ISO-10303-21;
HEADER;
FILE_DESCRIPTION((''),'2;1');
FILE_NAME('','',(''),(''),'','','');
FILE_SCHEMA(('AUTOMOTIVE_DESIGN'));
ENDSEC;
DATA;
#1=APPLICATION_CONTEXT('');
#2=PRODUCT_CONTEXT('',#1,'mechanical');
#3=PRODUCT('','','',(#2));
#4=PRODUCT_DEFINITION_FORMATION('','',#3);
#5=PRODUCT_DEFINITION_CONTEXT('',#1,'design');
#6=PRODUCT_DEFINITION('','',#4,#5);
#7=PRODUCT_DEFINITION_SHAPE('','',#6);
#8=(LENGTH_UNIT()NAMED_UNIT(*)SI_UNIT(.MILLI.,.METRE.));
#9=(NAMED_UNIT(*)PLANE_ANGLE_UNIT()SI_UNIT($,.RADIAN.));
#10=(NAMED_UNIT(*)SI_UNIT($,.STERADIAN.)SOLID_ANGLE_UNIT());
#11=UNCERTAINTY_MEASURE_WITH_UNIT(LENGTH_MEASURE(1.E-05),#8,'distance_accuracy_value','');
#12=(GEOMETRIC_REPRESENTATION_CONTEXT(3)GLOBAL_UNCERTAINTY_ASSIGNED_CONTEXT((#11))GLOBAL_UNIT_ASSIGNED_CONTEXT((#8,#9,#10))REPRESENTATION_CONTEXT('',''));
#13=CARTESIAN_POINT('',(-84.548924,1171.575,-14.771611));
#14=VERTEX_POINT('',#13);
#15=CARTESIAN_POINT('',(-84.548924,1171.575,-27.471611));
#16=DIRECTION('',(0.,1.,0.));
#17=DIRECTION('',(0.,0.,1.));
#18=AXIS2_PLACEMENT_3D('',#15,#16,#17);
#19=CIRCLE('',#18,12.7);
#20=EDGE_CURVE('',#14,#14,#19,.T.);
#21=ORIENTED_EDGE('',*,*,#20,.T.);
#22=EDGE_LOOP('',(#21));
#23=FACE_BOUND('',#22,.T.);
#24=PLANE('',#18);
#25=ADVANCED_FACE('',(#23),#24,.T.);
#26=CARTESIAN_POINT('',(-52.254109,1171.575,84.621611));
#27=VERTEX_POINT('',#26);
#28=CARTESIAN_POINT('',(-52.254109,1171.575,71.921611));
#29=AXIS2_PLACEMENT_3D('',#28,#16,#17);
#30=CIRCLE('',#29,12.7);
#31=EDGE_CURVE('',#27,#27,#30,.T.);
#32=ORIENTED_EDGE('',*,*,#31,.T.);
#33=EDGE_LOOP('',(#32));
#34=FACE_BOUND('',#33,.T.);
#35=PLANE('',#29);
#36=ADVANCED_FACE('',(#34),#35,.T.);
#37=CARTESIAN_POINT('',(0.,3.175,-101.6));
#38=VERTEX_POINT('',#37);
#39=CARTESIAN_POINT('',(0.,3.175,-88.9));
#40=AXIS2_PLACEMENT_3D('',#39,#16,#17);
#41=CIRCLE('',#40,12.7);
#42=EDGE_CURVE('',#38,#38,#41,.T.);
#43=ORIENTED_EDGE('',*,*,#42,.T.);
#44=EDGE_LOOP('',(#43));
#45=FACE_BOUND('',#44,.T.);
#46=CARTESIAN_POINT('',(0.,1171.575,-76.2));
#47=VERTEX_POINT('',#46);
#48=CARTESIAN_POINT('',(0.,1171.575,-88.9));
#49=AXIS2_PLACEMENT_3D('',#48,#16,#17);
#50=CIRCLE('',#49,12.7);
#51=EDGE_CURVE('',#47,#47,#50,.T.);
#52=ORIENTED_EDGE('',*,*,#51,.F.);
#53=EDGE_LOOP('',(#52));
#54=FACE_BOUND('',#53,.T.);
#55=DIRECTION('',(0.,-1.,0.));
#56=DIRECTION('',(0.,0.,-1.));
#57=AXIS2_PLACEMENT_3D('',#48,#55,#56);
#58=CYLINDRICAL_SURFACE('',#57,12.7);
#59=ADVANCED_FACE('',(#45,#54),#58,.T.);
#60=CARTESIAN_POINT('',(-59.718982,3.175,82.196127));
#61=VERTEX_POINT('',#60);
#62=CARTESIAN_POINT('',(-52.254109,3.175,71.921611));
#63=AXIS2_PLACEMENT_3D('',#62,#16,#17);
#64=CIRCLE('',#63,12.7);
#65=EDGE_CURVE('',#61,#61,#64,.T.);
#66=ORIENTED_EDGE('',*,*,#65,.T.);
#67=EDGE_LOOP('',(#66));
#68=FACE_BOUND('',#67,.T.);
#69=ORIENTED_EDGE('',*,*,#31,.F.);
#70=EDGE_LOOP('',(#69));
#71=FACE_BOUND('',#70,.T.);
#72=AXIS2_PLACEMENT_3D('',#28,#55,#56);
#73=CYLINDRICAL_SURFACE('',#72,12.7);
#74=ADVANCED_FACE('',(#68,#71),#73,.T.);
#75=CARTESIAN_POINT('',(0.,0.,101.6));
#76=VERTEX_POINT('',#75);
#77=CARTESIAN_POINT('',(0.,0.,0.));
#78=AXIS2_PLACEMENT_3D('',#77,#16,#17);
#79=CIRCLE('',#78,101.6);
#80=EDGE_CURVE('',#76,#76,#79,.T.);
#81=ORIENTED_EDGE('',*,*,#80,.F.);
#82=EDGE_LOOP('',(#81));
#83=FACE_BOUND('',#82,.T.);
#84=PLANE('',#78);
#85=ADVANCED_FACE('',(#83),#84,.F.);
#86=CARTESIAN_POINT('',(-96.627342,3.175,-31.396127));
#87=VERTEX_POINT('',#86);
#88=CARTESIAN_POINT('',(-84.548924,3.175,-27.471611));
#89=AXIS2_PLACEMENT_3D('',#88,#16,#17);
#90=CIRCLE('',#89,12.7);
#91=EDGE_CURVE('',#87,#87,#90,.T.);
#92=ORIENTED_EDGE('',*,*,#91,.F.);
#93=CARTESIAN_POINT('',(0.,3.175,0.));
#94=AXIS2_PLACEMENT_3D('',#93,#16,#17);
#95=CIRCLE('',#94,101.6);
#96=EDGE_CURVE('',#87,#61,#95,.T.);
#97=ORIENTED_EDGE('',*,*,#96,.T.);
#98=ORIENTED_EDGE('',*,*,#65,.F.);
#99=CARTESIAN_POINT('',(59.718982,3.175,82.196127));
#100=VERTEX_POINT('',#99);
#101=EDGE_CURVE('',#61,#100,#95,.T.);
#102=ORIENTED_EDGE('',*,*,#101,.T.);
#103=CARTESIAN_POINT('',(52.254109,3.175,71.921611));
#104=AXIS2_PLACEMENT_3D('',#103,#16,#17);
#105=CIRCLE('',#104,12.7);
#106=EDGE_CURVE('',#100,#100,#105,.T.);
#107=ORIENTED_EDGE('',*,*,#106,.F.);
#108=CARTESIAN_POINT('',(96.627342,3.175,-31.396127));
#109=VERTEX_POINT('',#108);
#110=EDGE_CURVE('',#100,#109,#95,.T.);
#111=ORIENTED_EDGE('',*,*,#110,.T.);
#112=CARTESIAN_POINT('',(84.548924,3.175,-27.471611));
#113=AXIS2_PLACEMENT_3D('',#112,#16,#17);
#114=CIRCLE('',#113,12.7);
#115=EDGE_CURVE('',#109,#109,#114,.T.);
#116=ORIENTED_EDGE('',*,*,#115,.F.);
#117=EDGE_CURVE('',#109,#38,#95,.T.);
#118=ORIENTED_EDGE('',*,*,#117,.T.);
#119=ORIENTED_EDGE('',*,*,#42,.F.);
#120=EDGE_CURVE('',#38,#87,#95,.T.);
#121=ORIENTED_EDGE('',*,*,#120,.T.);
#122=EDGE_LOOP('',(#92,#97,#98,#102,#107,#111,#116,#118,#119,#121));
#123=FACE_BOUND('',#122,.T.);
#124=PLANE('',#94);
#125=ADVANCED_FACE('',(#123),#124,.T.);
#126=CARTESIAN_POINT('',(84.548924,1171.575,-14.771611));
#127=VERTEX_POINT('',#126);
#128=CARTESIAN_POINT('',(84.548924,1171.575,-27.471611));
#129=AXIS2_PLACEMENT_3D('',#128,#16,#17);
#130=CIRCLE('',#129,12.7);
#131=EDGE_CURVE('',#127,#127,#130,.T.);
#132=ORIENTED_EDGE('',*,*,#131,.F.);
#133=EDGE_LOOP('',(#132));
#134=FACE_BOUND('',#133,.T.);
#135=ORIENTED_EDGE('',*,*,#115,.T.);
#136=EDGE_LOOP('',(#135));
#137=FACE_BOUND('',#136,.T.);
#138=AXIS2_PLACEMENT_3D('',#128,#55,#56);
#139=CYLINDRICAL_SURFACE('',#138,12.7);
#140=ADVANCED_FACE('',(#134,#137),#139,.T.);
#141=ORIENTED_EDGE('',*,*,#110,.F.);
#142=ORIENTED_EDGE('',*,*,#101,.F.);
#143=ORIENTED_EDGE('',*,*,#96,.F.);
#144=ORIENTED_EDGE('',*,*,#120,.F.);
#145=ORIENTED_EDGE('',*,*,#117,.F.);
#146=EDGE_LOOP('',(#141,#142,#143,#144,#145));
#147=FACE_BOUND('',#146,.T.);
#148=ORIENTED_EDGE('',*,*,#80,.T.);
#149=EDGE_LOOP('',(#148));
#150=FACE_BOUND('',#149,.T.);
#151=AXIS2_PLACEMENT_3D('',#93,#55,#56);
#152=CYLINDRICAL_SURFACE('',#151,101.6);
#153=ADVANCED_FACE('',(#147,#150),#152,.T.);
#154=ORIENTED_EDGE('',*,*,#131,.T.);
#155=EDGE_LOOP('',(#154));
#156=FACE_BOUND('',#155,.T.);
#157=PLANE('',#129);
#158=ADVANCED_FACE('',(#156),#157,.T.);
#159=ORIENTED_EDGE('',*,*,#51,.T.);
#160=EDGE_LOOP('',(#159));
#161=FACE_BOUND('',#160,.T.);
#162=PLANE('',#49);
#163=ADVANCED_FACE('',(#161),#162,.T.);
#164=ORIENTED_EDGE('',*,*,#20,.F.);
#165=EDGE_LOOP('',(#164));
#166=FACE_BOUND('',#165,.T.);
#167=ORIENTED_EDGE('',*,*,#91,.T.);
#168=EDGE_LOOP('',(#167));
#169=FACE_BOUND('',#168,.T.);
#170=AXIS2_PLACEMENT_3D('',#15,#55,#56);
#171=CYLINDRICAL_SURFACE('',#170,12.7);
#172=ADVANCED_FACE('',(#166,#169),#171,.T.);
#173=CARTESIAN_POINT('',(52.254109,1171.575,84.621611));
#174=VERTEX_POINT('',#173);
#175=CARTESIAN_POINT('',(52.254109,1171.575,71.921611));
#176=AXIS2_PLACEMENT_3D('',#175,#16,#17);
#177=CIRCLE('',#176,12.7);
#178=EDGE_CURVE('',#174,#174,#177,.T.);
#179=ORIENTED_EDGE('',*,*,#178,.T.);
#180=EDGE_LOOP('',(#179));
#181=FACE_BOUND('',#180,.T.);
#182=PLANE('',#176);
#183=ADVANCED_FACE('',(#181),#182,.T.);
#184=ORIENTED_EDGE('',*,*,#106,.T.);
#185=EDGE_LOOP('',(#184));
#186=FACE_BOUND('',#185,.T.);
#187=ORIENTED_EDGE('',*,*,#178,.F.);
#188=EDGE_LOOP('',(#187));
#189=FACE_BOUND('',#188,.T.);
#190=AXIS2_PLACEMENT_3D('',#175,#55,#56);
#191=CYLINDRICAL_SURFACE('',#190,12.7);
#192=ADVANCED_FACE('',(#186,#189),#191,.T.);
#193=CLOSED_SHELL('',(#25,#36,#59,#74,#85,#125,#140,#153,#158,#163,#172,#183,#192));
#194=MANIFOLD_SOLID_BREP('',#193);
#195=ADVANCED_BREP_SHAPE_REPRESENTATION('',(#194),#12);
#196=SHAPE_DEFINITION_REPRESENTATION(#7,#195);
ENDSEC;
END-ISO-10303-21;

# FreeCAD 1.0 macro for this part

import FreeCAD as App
import Part
import Sketcher
Q = App.Units.Quantity

doc = App.newDocument("Part")
params = doc.addObject("Spreadsheet::Sheet", "Params")
for row, (alias, value) in enumerate([
    ("sketch1_diameter", "8 in"),
    ("pad1_length", "0.125 in"),
    ("sketch2_diameter", "1 in"),
    ("pad2_length", "46 in"),
], start=1):
    params.set(f"A{row}", alias)
    params.set(f"B{row}", "=" + value)
    params.setAlias(f"B{row}", alias)

body = doc.addObject("PartDesign::Body", "Body")

# Sketch on XZ plane
sketch1 = body.newObject("Sketcher::SketchObject", "Sketch")
sketch1.AttachmentSupport = (doc.getObject("XZ_Plane"), [""])
sketch1.MapMode = "FlatFace"
sketch1.addGeometry(Part.Circle(App.Vector(0, 0, 0), App.Vector(0, 0, 1), 102), False)
sketch1.addConstraint(Sketcher.Constraint("Coincident", 0, 3, -1, 1))
sketch1.addConstraint(Sketcher.Constraint("Diameter", 0, Q("8 in")))
sketch1.setExpression("Constraints[1]", "Params.sketch1_diameter")
pad1 = body.newObject("PartDesign::Pad", "Pad")
pad1.Profile = sketch1
pad1.setExpression("Length", "Params.pad1_length")
pad1.Reversed = True

# Sketch on XZ plane
sketch2 = body.newObject("Sketcher::SketchObject", "Sketch001")
sketch2.AttachmentSupport = (doc.getObject("XZ_Plane"), [""])
sketch2.MapMode = "FlatFace"
sketch2.AttachmentOffset = App.Placement(App.Vector(0, 0, -0.125 * 25.4), App.Rotation())
sketch2.addGeometry(Part.Circle(App.Vector(0, -89, 0), App.Vector(0, 0, 1), 13), False)
sketch2.addGeometry(Part.Circle(App.Vector(85, -27, 0), App.Vector(0, 0, 1), 13), False)
sketch2.addGeometry(Part.Circle(App.Vector(52, 72, 0), App.Vector(0, 0, 1), 13), False)
sketch2.addGeometry(Part.Circle(App.Vector(-52, 72, 0), App.Vector(0, 0, 1), 13), False)
sketch2.addGeometry(Part.Circle(App.Vector(-85, -27, 0), App.Vector(0, 0, 1), 13), False)
sketch2.addConstraint(Sketcher.Constraint("Equal", 0, 1))
sketch2.addConstraint(Sketcher.Constraint("Equal", 1, 2))
sketch2.addConstraint(Sketcher.Constraint("Equal", 2, 3))
sketch2.addConstraint(Sketcher.Constraint("Equal", 3, 4))
sketch2.addConstraint(Sketcher.Constraint("Symmetric", 2, 3, 3, 3, -2))
sketch2.addConstraint(Sketcher.Constraint("Symmetric", 1, 3, 4, 3, -2))
sketch2.addConstraint(Sketcher.Constraint("PointOnObject", 0, 3, -2))
sketch2.addConstraint(Sketcher.Constraint("Diameter", 0, Q("1 in")))
sketch2.addConstraint(Sketcher.Constraint("DistanceY", 0, 3, -1, 1, Q("3.5 in")))
sketch2.addConstraint(Sketcher.Constraint("DistanceY", 1, 3, -1, 1, Q("27.471611 mm")))
sketch2.addConstraint(Sketcher.Constraint("DistanceX", -1, 1, 2, 3, Q("52.254109 mm")))
sketch2.addConstraint(Sketcher.Constraint("DistanceY", -1, 1, 2, 3, Q("71.921611 mm")))
sketch2.addConstraint(Sketcher.Constraint("DistanceX", 4, 3, 1, 3, Q("169.097849 mm")))
sketch2.setExpression("Constraints[7]", "Params.sketch2_diameter")
pad2 = body.newObject("PartDesign::Pad", "Pad001")
pad2.Profile = sketch2
pad2.setExpression("Length", "Params.pad2_length")
pad2.Reversed = True

doc.recompute()
